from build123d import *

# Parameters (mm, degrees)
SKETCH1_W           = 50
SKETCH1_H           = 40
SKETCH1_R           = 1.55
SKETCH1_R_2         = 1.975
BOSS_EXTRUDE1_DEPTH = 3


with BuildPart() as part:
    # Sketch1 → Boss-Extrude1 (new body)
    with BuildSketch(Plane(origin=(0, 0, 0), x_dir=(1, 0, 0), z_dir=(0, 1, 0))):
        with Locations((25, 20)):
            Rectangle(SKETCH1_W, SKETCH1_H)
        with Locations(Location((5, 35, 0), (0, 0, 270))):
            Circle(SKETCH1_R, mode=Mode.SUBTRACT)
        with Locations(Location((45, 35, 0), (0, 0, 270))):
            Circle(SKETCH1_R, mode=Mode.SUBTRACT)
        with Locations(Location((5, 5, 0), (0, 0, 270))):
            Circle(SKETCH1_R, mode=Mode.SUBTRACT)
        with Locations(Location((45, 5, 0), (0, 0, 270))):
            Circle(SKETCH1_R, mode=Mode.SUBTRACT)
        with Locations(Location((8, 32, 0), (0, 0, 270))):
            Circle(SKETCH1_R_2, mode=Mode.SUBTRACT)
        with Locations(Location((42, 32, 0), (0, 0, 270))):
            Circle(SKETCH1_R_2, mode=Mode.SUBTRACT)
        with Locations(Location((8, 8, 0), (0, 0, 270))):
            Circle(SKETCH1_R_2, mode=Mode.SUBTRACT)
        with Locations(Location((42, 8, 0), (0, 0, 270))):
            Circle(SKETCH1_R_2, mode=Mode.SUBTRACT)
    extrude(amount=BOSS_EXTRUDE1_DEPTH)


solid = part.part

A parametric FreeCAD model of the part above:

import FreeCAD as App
import Part
import Sketcher

V = App.Vector
Q = App.Units.Quantity


def add_polygon(sketch, points):
    """Adds a closed chain of lines whose ends are joined by coincident constraints."""
    first, n = sketch.GeometryCount, len(points)
    for a, b in zip(points, points[1:] + points[:1]):
        sketch.addGeometry(Part.LineSegment(App.Vector(*a, 0), App.Vector(*b, 0)), False)
    for i in range(n):
        sketch.addConstraint(Sketcher.Constraint("Coincident", first + i, 2, first + (i + 1) % n, 1))

doc = App.newDocument("Part")
body = doc.addObject("PartDesign::Body", "Body")

sketch1 = doc.addObject("Sketcher::SketchObject", "Sketch")
body.addObject(sketch1)
sketch1.AttachmentSupport = (doc.XZ_Plane, [""])
sketch1.MapMode = "FlatFace"
add_polygon(sketch1, [(0, -40), (0, 0), (50, 0), (50, -40)])
sketch1.addGeometry(Part.Circle(V(5, -5, 0), V(0, 0, 1), 1.55), False)
sketch1.addGeometry(Part.Circle(V(8, -8, 0), V(0, 0, 1), 1.975), False)
sketch1.addGeometry(Part.Circle(V(45, -5, 0), V(0, 0, 1), 1.55), False)
sketch1.addGeometry(Part.Circle(V(42, -8, 0), V(0, 0, 1), 1.975), False)
sketch1.addGeometry(Part.Circle(V(8, -32, 0), V(0, 0, 1), 1.975), False)
sketch1.addGeometry(Part.Circle(V(5, -35, 0), V(0, 0, 1), 1.55), False)
sketch1.addGeometry(Part.Circle(V(42, -32, 0), V(0, 0, 1), 1.975), False)
sketch1.addGeometry(Part.Circle(V(45, -35, 0), V(0, 0, 1), 1.55), False)
sketch1.addConstraint(Sketcher.Constraint("Vertical", 0))
sketch1.addConstraint(Sketcher.Constraint("Horizontal", 1))
sketch1.addConstraint(Sketcher.Constraint("Vertical", 2))
sketch1.addConstraint(Sketcher.Constraint("Horizontal", 3))
sketch1.addConstraint(Sketcher.Constraint("Coincident", 0, 2, -1, 1))
sketch1.addConstraint(Sketcher.Constraint("Equal", 4, 6))
sketch1.addConstraint(Sketcher.Constraint("Equal", 5, 7))
sketch1.addConstraint(Sketcher.Constraint("Equal", 7, 8))
sketch1.addConstraint(Sketcher.Constraint("Equal", 6, 9))
sketch1.addConstraint(Sketcher.Constraint("Equal", 8, 10))
sketch1.addConstraint(Sketcher.Constraint("Equal", 9, 11))
sketch1.addConstraint(Sketcher.Constraint("Horizontal", 4, 3, 6, 3))
sketch1.addConstraint(Sketcher.Constraint("Horizontal", 5, 3, 7, 3))
sketch1.addConstraint(Sketcher.Constraint("Horizontal", 8, 3, 10, 3))
sketch1.addConstraint(Sketcher.Constraint("Horizontal", 9, 3, 11, 3))
sketch1.addConstraint(Sketcher.Constraint("Vertical", 5, 3, 8, 3))
sketch1.addConstraint(Sketcher.Constraint("Vertical", 4, 3, 9, 3))
sketch1.addConstraint(Sketcher.Constraint("Vertical", 7, 3, 10, 3))
sketch1.addConstraint(Sketcher.Constraint("Vertical", 6, 3, 11, 3))
sketch1.addConstraint(Sketcher.Constraint("Diameter", 4, Q("3.1 mm")))
sketch1.addConstraint(Sketcher.Constraint("Diameter", 5, Q("3.95 mm")))
sketch1.addConstraint(Sketcher.Constraint("DistanceX", 1, 1, 1, 2, Q("50 mm")))
sketch1.addConstraint(Sketcher.Constraint("DistanceY", 0, 1, 0, 2, Q("40 mm")))
sketch1.addConstraint(Sketcher.Constraint("DistanceX", -1, 1, 4, 3, Q("5 mm")))
sketch1.addConstraint(Sketcher.Constraint("DistanceY", 4, 3, -1, 1, Q("5 mm")))
sketch1.addConstraint(Sketcher.Constraint("DistanceX", -1, 1, 5, 3, Q("8 mm")))
sketch1.addConstraint(Sketcher.Constraint("DistanceY", 5, 3, -1, 1, Q("8 mm")))
sketch1.addConstraint(Sketcher.Constraint("DistanceX", -1, 1, 6, 3, Q("45 mm")))
sketch1.addConstraint(Sketcher.Constraint("DistanceX", -1, 1, 7, 3, Q("42 mm")))
sketch1.addConstraint(Sketcher.Constraint("DistanceY", 8, 3, -1, 1, Q("32 mm")))
sketch1.addConstraint(Sketcher.Constraint("DistanceY", 9, 3, -1, 1, Q("35 mm")))
pad1 = doc.addObject("PartDesign::Pad", "Pad")
body.addObject(pad1)
pad1.Profile = sketch1
pad1.Length = 3
pad1.Reversed = True

doc.recompute()
